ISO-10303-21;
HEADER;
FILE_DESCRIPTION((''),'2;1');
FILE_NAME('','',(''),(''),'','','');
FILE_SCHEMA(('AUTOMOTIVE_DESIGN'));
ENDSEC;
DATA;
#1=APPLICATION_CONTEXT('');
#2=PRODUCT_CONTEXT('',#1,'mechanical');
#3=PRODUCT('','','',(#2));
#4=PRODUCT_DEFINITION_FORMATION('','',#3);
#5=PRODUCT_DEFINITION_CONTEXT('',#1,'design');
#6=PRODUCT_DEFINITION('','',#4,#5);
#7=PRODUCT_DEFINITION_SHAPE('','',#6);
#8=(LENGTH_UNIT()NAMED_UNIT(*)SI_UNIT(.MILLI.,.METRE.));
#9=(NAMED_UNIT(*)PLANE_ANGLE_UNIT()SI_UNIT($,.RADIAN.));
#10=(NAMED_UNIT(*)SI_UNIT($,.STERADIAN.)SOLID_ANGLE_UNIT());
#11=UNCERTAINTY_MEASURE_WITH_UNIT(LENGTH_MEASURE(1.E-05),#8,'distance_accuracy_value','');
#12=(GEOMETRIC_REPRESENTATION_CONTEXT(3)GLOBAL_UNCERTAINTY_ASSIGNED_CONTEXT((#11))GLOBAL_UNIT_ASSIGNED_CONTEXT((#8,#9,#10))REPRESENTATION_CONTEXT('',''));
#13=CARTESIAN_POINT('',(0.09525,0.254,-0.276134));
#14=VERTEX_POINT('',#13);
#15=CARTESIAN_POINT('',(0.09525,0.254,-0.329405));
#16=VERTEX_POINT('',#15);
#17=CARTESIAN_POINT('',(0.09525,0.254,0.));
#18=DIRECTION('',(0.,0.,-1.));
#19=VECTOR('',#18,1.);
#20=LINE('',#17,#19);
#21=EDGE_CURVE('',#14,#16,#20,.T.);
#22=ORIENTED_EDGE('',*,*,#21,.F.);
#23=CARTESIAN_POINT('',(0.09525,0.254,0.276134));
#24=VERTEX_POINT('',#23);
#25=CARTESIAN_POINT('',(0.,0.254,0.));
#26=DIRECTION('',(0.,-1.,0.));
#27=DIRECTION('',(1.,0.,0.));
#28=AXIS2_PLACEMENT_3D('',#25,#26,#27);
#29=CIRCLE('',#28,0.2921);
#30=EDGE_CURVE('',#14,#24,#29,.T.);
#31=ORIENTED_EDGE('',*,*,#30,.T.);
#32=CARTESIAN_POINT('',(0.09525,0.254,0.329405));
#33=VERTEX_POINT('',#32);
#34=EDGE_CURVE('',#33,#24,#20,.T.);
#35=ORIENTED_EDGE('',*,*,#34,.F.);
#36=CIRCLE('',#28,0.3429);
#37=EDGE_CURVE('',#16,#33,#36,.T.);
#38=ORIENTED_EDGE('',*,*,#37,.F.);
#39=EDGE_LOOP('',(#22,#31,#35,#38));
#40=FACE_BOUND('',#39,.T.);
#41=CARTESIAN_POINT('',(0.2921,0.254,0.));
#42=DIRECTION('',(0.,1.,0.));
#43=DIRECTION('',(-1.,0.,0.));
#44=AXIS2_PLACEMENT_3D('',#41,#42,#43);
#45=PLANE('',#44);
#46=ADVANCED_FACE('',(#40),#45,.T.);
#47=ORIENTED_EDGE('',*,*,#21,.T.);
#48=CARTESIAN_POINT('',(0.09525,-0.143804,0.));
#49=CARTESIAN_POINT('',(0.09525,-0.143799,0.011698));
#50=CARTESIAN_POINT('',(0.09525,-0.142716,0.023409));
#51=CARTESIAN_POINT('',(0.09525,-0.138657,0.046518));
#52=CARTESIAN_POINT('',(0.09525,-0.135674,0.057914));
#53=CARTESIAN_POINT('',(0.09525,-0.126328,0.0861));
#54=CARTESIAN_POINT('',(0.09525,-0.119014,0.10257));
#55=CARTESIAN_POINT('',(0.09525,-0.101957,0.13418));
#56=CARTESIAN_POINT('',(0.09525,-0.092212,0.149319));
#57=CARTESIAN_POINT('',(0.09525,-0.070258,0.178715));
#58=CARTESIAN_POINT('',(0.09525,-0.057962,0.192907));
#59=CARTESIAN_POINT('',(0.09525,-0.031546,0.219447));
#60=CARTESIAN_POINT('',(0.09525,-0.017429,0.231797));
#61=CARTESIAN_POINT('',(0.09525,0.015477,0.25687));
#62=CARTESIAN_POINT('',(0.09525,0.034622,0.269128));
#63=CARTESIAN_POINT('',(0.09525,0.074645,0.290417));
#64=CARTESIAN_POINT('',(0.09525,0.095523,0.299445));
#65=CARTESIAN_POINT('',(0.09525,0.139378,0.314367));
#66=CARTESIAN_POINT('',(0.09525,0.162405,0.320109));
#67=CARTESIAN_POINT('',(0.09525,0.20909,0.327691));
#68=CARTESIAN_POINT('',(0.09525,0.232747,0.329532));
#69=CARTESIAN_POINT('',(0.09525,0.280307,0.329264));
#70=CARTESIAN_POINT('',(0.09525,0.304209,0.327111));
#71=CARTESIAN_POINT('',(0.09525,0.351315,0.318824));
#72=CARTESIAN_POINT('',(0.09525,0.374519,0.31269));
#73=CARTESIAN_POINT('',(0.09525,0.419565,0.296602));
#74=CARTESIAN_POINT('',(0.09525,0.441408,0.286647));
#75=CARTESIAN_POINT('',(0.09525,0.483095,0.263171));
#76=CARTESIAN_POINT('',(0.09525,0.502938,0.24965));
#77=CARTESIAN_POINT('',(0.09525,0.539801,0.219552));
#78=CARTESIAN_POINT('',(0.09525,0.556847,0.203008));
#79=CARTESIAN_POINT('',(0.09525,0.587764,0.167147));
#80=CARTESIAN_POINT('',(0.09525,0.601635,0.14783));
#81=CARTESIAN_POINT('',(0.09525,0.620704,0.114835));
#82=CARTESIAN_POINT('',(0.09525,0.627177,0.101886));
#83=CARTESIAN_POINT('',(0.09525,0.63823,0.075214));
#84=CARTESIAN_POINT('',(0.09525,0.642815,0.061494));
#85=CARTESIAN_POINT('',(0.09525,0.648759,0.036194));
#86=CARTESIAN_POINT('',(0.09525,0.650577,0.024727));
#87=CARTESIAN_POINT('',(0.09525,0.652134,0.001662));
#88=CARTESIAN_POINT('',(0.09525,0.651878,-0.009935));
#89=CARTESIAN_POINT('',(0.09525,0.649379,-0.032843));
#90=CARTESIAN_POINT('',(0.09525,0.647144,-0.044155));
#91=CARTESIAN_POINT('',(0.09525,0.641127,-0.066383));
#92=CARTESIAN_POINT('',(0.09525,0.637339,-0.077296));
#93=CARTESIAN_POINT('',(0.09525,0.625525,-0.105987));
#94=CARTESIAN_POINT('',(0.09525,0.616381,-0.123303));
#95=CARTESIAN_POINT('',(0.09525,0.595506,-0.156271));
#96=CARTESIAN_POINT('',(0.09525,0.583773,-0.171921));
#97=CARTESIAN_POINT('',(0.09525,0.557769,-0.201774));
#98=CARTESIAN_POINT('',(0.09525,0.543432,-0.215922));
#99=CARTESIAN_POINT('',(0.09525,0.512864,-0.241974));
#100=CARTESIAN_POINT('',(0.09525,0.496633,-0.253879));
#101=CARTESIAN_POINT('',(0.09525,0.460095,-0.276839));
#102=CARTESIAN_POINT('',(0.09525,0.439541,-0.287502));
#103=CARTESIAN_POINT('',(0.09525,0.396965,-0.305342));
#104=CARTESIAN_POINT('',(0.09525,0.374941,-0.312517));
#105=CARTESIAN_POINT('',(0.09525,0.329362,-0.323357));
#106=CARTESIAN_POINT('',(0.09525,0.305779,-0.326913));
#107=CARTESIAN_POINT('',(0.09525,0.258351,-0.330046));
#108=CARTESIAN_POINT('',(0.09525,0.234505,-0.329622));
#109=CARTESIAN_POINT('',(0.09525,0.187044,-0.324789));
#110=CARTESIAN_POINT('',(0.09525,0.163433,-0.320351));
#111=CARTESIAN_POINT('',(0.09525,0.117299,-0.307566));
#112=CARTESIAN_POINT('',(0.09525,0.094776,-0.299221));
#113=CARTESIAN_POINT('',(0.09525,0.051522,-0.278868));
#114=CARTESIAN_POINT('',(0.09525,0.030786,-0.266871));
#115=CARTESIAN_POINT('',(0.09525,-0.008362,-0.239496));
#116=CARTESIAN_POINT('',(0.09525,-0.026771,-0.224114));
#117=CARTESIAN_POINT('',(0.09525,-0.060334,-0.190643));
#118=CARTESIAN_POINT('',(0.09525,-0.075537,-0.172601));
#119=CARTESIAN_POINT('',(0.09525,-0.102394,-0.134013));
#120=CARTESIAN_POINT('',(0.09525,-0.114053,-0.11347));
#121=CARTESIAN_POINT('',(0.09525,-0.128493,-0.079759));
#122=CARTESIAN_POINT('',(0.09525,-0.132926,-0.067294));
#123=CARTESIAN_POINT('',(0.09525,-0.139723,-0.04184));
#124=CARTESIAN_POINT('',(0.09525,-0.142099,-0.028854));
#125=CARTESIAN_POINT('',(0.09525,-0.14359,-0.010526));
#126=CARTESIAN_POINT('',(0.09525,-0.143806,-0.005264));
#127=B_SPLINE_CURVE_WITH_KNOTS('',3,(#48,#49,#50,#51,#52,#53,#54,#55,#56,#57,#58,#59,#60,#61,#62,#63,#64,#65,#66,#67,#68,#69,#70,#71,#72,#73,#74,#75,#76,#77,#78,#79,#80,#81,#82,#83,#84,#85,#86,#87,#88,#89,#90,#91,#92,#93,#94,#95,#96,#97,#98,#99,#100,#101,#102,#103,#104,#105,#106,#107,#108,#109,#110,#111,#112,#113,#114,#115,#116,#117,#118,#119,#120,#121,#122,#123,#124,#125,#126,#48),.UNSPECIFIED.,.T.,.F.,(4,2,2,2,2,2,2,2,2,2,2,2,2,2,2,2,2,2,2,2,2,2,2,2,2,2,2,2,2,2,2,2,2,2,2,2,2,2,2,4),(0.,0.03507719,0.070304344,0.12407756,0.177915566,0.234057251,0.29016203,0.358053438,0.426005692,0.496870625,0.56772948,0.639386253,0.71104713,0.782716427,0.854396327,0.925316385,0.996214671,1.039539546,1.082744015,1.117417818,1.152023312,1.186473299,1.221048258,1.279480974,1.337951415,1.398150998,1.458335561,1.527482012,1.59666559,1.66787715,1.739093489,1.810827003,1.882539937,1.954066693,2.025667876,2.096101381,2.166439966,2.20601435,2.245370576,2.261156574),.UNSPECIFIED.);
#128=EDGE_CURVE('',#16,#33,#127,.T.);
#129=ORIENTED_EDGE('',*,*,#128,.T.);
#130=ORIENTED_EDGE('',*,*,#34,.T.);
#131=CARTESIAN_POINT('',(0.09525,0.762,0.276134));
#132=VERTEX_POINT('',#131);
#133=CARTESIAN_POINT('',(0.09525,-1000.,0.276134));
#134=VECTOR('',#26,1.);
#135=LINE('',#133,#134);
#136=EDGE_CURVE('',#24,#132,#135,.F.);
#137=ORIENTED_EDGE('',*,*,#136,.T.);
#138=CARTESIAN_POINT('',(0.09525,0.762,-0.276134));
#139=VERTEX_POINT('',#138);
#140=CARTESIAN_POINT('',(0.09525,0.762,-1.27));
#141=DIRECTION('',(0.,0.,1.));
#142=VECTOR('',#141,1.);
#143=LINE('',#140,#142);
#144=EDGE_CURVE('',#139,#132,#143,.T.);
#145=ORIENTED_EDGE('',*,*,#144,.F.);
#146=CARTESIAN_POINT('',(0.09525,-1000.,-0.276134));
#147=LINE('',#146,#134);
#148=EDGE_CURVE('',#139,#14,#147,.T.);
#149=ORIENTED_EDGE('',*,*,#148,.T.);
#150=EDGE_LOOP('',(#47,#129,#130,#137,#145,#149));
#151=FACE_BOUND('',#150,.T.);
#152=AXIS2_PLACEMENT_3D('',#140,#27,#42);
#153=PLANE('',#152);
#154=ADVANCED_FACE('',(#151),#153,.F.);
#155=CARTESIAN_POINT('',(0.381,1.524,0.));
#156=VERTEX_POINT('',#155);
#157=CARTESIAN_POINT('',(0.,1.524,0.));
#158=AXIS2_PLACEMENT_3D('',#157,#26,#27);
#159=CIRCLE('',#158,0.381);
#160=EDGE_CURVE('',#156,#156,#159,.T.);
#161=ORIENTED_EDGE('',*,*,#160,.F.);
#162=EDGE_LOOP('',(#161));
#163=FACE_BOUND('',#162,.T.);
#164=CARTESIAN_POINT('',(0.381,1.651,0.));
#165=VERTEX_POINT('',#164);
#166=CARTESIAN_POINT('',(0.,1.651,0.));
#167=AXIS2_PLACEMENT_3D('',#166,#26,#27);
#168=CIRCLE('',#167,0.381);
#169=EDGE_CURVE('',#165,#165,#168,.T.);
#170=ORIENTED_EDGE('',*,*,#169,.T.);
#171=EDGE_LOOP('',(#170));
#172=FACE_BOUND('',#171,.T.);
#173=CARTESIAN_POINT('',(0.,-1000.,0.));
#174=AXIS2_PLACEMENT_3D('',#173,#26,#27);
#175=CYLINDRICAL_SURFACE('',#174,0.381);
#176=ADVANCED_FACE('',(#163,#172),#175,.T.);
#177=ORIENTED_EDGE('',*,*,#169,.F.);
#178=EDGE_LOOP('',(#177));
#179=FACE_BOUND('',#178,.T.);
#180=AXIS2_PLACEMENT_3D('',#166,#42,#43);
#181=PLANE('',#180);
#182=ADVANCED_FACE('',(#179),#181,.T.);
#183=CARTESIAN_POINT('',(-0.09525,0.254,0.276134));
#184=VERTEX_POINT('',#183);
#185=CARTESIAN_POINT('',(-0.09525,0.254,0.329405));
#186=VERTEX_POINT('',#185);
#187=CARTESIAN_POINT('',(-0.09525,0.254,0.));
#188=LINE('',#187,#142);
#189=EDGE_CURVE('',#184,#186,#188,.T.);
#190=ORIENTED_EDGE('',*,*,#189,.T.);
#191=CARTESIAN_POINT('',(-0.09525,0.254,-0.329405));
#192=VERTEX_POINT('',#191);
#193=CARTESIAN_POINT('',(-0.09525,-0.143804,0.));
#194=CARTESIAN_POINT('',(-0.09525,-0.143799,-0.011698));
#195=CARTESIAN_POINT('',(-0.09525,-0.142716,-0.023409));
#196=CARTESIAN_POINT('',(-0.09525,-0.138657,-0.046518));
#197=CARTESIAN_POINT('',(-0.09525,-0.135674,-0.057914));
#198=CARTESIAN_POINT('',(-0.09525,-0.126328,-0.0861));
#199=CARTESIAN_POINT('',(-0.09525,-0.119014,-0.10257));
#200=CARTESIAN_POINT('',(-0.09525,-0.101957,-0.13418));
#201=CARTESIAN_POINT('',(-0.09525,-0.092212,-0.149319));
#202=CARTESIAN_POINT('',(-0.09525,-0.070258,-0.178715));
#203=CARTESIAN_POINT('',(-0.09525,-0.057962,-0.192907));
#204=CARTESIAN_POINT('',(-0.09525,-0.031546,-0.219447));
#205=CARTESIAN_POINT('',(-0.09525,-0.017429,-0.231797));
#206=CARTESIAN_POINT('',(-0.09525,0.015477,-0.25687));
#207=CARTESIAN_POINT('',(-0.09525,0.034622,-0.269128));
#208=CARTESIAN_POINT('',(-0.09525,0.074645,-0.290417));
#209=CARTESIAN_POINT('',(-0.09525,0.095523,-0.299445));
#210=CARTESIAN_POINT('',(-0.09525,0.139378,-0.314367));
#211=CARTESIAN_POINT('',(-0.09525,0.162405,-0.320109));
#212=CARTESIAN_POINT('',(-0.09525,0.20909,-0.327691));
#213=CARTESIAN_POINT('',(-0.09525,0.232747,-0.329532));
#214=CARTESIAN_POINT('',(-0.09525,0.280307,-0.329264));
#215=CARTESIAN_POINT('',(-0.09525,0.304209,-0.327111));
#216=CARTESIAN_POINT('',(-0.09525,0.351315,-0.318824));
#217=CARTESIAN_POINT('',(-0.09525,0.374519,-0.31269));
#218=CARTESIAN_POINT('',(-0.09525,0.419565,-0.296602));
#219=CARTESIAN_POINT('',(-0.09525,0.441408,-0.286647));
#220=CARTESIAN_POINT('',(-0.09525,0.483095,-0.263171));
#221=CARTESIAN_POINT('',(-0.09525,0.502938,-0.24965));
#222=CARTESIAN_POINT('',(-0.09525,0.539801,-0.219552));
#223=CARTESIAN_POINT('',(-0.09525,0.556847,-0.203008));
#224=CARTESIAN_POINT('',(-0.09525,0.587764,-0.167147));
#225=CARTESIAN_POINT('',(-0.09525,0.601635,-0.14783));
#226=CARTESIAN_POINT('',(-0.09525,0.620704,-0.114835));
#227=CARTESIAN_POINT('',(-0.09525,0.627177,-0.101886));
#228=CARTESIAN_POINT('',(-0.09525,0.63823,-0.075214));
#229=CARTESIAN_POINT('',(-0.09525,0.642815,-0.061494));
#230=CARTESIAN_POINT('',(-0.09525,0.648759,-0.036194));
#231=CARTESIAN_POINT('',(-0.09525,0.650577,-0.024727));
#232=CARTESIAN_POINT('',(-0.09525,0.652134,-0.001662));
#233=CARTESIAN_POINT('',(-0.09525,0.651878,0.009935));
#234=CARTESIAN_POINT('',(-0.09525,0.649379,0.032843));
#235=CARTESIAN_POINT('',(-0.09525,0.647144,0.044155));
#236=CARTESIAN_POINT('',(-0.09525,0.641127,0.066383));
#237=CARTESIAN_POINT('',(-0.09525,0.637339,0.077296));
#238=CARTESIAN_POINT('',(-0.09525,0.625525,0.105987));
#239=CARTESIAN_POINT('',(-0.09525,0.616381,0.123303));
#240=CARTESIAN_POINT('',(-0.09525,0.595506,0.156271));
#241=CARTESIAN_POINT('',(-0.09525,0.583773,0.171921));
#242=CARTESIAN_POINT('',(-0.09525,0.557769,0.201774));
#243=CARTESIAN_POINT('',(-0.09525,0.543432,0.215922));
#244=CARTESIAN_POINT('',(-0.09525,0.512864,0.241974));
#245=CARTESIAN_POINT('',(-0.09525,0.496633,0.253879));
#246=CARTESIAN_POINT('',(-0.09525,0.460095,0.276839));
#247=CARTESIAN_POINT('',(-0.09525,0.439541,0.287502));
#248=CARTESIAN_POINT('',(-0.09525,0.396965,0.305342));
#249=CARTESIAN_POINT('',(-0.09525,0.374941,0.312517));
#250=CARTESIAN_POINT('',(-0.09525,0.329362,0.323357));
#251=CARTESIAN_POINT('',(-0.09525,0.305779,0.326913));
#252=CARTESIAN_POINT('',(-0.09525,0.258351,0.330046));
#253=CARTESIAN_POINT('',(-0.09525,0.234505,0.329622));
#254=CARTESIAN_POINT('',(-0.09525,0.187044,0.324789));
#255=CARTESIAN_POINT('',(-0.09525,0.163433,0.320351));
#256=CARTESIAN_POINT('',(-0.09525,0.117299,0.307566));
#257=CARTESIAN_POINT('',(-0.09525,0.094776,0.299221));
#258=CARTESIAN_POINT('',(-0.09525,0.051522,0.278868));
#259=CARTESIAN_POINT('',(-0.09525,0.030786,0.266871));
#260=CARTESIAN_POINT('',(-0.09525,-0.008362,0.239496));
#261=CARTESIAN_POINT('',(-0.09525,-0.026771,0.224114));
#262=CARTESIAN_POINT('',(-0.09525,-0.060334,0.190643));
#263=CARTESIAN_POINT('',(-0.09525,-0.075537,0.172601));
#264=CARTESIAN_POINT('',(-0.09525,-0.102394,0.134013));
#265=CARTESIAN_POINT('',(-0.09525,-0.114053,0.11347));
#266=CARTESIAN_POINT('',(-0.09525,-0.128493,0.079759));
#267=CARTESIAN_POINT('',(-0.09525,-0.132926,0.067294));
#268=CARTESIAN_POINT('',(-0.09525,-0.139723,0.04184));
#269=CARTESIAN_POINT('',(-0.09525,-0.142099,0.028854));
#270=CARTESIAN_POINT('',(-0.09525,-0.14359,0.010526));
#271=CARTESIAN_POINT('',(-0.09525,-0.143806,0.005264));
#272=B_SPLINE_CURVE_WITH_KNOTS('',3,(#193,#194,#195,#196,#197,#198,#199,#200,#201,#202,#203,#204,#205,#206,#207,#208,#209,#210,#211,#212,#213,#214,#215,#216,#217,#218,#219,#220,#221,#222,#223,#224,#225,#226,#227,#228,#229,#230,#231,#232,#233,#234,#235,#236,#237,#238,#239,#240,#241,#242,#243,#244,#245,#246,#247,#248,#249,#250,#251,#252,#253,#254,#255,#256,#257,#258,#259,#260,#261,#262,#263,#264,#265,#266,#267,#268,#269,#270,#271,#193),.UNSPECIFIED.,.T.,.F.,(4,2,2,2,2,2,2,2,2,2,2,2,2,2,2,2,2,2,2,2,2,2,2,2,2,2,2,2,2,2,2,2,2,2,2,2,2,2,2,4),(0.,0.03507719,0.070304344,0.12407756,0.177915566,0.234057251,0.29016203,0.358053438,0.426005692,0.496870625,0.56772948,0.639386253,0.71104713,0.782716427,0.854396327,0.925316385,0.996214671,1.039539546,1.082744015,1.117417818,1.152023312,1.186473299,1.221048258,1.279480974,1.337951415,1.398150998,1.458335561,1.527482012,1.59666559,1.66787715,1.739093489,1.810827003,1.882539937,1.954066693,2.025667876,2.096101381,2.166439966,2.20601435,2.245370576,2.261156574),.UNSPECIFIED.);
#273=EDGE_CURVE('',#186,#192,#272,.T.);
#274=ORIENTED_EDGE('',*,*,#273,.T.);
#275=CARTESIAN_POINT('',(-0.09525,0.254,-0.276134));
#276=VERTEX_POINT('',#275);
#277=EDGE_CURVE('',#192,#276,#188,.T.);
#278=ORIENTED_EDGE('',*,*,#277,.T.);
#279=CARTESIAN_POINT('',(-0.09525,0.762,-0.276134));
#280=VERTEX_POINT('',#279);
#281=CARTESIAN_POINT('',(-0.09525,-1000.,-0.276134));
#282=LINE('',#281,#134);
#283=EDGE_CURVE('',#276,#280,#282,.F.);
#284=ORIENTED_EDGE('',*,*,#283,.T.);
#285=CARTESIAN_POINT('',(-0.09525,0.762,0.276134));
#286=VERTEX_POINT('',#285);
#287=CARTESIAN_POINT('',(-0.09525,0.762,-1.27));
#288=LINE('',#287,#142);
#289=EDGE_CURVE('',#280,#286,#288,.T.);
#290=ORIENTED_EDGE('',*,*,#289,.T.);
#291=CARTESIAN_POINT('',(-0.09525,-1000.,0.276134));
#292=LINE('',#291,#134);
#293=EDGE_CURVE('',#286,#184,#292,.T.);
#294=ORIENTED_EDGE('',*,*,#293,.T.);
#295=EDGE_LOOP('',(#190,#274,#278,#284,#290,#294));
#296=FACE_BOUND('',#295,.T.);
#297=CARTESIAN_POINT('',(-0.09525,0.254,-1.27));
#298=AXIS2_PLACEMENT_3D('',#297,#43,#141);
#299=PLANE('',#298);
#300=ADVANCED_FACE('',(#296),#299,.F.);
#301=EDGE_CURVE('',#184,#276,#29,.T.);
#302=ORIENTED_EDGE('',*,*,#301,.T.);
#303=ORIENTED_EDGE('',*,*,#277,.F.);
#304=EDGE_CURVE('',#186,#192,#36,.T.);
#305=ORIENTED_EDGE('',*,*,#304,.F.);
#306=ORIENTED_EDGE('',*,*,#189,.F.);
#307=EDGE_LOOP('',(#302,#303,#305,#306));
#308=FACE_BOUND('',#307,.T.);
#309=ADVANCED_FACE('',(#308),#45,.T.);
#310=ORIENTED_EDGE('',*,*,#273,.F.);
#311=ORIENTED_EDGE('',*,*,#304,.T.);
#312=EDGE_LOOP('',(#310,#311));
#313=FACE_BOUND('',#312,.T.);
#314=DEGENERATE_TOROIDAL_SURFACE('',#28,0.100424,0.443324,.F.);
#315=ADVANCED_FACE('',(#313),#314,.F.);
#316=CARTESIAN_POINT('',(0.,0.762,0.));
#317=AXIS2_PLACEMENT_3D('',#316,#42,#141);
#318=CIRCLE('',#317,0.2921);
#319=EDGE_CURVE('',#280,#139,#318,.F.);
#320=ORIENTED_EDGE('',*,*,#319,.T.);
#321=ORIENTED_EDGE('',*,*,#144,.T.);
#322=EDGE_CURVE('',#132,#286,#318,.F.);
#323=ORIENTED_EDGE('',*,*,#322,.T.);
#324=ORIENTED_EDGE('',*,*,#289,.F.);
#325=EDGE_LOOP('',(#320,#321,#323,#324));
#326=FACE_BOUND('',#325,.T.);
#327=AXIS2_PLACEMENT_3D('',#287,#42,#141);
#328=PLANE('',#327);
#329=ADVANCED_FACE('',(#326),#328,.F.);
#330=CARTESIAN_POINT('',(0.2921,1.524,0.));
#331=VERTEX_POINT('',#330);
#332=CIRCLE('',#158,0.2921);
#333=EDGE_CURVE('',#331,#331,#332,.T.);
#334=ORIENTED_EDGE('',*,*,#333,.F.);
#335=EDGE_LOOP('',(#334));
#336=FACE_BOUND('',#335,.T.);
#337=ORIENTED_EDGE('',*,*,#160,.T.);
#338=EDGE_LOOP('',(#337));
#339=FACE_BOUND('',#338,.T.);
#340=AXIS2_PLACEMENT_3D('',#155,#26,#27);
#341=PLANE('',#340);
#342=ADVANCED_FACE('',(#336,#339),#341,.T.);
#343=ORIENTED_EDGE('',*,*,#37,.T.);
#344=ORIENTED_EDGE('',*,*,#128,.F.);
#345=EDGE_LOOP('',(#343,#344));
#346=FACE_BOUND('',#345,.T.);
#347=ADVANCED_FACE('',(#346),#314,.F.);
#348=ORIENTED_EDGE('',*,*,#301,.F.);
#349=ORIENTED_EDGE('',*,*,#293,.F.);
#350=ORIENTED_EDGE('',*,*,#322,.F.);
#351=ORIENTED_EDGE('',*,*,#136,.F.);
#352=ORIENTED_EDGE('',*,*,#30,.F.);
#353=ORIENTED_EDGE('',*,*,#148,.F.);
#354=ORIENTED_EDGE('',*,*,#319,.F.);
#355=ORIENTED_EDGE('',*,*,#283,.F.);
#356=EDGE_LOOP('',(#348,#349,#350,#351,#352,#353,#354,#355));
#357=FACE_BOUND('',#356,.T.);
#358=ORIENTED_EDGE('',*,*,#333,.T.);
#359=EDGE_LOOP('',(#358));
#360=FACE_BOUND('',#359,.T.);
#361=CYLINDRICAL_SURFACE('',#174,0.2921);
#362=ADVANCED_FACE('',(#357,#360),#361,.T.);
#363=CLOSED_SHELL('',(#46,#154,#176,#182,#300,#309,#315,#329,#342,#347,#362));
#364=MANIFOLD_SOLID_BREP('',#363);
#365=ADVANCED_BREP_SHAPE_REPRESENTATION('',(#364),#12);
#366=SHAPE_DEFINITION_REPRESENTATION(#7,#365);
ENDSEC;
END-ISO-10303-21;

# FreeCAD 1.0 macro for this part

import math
import FreeCAD as App
import Part
import Sketcher
Q = App.Units.Quantity


def add_polygon(sketch, points):
    """Adds a closed chain of lines whose ends are joined by coincident constraints."""
    first, n = sketch.GeometryCount, len(points)
    for a, b in zip(points, points[1:] + points[:1]):
        sketch.addGeometry(Part.LineSegment(App.Vector(*a, 0), App.Vector(*b, 0)), False)
    for i in range(n):
        sketch.addConstraint(Sketcher.Constraint("Coincident", first + i, 2, first + (i + 1) % n, 1))

doc = App.newDocument("Part")
body = doc.addObject("PartDesign::Body", "Body")

sketch1 = doc.addObject("Sketcher::SketchObject", "Sketch")
body.addObject(sketch1)
sketch1.AttachmentSupport = (doc.XY_Plane, [""])
sketch1.MapMode = "FlatFace"
sketch1.addGeometry(Part.LineSegment(App.Vector(0.38, 1.65, 0), App.Vector(0, 1.65, 0)), False)
sketch1.addGeometry(Part.LineSegment(App.Vector(0, 1.65, 0), App.Vector(0, -0.18, 0)), False)
sketch1.addGeometry(Part.ArcOfCircle(Part.Circle(App.Vector(-0.1, 0.25, 0), App.Vector(0, 0, 1), 0.44), math.radians(-77), math.radians(0)), False)
sketch1.addGeometry(Part.LineSegment(App.Vector(0.34, 0.25, 0), App.Vector(0.29, 0.25, 0)), False)
sketch1.addGeometry(Part.LineSegment(App.Vector(0.29, 0.25, 0), App.Vector(0.29, 1.52, 0)), False)
sketch1.addGeometry(Part.LineSegment(App.Vector(0.29, 1.52, 0), App.Vector(0.38, 1.52, 0)), False)
sketch1.addGeometry(Part.LineSegment(App.Vector(0.38, 1.52, 0), App.Vector(0.38, 1.65, 0)), False)
sketch1.addConstraint(Sketcher.Constraint("Coincident", 0, 2, 1, 1))
sketch1.addConstraint(Sketcher.Constraint("Coincident", 1, 2, 2, 1))
sketch1.addConstraint(Sketcher.Constraint("Coincident", 2, 2, 3, 1))
sketch1.addConstraint(Sketcher.Constraint("Coincident", 3, 2, 4, 1))
sketch1.addConstraint(Sketcher.Constraint("Coincident", 4, 2, 5, 1))
sketch1.addConstraint(Sketcher.Constraint("Coincident", 5, 2, 6, 1))
sketch1.addConstraint(Sketcher.Constraint("Coincident", 6, 2, 0, 1))
sketch1.addConstraint(Sketcher.Constraint("Horizontal", 0))
sketch1.addConstraint(Sketcher.Constraint("Vertical", 1))
sketch1.addConstraint(Sketcher.Constraint("Horizontal", 3))
sketch1.addConstraint(Sketcher.Constraint("Vertical", 4))
sketch1.addConstraint(Sketcher.Constraint("Horizontal", 5))
sketch1.addConstraint(Sketcher.Constraint("Vertical", 6))
sketch1.addConstraint(Sketcher.Constraint("PointOnObject", 0, 2, -2))
sketch1.addConstraint(Sketcher.Constraint("DistanceY", 4, 1, 4, 2, Q("0.05 in")))
sketch1.addConstraint(Sketcher.Constraint("DistanceX", 0, 2, 0, 1, Q("0.015 in")))
sketch1.addConstraint(Sketcher.Constraint("DistanceX", 3, 2, 3, 1, Q("0.002 in")))
sketch1.addConstraint(Sketcher.Constraint("DistanceY", 1, 2, 1, 1, Q("0.072 in")))
sketch1.addConstraint(Sketcher.Constraint("DistanceY", 6, 1, 6, 2, Q("0.005 in")))
sketch1.addConstraint(Sketcher.Constraint("DistanceY", -1, 1, 2, 3, Q("0.01 in")))
sketch1.addConstraint(Sketcher.Constraint("DistanceY", -1, 1, 2, 2, Q("0.01 in")))
sketch1.addConstraint(Sketcher.Constraint("DistanceX", 5, 1, 5, 2, Q("0.0035 in")))
revolution = doc.addObject("PartDesign::Revolution", "Revolution")
body.addObject(revolution)
revolution.Profile = sketch1
revolution.ReferenceAxis = (sketch1, ["V_Axis"])
revolution.Angle = 360

sketch2 = doc.addObject("Sketcher::SketchObject", "Sketch001")
body.addObject(sketch2)
sketch2.AttachmentSupport = (doc.XY_Plane, [""])
sketch2.MapMode = "FlatFace"
add_polygon(sketch2, [(-0.1, 0.76), (-0.1, -0.33), (0.1, -0.33), (0.1, 0.76)])
sketch2.addConstraint(Sketcher.Constraint("Vertical", 0))
sketch2.addConstraint(Sketcher.Constraint("Horizontal", 1))
sketch2.addConstraint(Sketcher.Constraint("Vertical", 2))
sketch2.addConstraint(Sketcher.Constraint("Horizontal", 3))
sketch2.addConstraint(Sketcher.Constraint("DistanceY", 0, 2, 0, 1, Q("0.043 in")))
sketch2.addConstraint(Sketcher.Constraint("DistanceY", -1, 1, 2, 2, Q("0.03 in")))
sketch2.addConstraint(Sketcher.Constraint("DistanceX", 1, 1, 1, 2, Q("0.0075 in")))
sketch2.addConstraint(Sketcher.Constraint("DistanceX", 0, 2, -1, 1, 0.09525))
pocket1 = doc.addObject("PartDesign::Pocket", "Pocket")
body.addObject(pocket1)
pocket1.Profile = sketch2
pocket1.Length = Q("0.1 in")
pocket1.Midplane = True

doc.recompute()
